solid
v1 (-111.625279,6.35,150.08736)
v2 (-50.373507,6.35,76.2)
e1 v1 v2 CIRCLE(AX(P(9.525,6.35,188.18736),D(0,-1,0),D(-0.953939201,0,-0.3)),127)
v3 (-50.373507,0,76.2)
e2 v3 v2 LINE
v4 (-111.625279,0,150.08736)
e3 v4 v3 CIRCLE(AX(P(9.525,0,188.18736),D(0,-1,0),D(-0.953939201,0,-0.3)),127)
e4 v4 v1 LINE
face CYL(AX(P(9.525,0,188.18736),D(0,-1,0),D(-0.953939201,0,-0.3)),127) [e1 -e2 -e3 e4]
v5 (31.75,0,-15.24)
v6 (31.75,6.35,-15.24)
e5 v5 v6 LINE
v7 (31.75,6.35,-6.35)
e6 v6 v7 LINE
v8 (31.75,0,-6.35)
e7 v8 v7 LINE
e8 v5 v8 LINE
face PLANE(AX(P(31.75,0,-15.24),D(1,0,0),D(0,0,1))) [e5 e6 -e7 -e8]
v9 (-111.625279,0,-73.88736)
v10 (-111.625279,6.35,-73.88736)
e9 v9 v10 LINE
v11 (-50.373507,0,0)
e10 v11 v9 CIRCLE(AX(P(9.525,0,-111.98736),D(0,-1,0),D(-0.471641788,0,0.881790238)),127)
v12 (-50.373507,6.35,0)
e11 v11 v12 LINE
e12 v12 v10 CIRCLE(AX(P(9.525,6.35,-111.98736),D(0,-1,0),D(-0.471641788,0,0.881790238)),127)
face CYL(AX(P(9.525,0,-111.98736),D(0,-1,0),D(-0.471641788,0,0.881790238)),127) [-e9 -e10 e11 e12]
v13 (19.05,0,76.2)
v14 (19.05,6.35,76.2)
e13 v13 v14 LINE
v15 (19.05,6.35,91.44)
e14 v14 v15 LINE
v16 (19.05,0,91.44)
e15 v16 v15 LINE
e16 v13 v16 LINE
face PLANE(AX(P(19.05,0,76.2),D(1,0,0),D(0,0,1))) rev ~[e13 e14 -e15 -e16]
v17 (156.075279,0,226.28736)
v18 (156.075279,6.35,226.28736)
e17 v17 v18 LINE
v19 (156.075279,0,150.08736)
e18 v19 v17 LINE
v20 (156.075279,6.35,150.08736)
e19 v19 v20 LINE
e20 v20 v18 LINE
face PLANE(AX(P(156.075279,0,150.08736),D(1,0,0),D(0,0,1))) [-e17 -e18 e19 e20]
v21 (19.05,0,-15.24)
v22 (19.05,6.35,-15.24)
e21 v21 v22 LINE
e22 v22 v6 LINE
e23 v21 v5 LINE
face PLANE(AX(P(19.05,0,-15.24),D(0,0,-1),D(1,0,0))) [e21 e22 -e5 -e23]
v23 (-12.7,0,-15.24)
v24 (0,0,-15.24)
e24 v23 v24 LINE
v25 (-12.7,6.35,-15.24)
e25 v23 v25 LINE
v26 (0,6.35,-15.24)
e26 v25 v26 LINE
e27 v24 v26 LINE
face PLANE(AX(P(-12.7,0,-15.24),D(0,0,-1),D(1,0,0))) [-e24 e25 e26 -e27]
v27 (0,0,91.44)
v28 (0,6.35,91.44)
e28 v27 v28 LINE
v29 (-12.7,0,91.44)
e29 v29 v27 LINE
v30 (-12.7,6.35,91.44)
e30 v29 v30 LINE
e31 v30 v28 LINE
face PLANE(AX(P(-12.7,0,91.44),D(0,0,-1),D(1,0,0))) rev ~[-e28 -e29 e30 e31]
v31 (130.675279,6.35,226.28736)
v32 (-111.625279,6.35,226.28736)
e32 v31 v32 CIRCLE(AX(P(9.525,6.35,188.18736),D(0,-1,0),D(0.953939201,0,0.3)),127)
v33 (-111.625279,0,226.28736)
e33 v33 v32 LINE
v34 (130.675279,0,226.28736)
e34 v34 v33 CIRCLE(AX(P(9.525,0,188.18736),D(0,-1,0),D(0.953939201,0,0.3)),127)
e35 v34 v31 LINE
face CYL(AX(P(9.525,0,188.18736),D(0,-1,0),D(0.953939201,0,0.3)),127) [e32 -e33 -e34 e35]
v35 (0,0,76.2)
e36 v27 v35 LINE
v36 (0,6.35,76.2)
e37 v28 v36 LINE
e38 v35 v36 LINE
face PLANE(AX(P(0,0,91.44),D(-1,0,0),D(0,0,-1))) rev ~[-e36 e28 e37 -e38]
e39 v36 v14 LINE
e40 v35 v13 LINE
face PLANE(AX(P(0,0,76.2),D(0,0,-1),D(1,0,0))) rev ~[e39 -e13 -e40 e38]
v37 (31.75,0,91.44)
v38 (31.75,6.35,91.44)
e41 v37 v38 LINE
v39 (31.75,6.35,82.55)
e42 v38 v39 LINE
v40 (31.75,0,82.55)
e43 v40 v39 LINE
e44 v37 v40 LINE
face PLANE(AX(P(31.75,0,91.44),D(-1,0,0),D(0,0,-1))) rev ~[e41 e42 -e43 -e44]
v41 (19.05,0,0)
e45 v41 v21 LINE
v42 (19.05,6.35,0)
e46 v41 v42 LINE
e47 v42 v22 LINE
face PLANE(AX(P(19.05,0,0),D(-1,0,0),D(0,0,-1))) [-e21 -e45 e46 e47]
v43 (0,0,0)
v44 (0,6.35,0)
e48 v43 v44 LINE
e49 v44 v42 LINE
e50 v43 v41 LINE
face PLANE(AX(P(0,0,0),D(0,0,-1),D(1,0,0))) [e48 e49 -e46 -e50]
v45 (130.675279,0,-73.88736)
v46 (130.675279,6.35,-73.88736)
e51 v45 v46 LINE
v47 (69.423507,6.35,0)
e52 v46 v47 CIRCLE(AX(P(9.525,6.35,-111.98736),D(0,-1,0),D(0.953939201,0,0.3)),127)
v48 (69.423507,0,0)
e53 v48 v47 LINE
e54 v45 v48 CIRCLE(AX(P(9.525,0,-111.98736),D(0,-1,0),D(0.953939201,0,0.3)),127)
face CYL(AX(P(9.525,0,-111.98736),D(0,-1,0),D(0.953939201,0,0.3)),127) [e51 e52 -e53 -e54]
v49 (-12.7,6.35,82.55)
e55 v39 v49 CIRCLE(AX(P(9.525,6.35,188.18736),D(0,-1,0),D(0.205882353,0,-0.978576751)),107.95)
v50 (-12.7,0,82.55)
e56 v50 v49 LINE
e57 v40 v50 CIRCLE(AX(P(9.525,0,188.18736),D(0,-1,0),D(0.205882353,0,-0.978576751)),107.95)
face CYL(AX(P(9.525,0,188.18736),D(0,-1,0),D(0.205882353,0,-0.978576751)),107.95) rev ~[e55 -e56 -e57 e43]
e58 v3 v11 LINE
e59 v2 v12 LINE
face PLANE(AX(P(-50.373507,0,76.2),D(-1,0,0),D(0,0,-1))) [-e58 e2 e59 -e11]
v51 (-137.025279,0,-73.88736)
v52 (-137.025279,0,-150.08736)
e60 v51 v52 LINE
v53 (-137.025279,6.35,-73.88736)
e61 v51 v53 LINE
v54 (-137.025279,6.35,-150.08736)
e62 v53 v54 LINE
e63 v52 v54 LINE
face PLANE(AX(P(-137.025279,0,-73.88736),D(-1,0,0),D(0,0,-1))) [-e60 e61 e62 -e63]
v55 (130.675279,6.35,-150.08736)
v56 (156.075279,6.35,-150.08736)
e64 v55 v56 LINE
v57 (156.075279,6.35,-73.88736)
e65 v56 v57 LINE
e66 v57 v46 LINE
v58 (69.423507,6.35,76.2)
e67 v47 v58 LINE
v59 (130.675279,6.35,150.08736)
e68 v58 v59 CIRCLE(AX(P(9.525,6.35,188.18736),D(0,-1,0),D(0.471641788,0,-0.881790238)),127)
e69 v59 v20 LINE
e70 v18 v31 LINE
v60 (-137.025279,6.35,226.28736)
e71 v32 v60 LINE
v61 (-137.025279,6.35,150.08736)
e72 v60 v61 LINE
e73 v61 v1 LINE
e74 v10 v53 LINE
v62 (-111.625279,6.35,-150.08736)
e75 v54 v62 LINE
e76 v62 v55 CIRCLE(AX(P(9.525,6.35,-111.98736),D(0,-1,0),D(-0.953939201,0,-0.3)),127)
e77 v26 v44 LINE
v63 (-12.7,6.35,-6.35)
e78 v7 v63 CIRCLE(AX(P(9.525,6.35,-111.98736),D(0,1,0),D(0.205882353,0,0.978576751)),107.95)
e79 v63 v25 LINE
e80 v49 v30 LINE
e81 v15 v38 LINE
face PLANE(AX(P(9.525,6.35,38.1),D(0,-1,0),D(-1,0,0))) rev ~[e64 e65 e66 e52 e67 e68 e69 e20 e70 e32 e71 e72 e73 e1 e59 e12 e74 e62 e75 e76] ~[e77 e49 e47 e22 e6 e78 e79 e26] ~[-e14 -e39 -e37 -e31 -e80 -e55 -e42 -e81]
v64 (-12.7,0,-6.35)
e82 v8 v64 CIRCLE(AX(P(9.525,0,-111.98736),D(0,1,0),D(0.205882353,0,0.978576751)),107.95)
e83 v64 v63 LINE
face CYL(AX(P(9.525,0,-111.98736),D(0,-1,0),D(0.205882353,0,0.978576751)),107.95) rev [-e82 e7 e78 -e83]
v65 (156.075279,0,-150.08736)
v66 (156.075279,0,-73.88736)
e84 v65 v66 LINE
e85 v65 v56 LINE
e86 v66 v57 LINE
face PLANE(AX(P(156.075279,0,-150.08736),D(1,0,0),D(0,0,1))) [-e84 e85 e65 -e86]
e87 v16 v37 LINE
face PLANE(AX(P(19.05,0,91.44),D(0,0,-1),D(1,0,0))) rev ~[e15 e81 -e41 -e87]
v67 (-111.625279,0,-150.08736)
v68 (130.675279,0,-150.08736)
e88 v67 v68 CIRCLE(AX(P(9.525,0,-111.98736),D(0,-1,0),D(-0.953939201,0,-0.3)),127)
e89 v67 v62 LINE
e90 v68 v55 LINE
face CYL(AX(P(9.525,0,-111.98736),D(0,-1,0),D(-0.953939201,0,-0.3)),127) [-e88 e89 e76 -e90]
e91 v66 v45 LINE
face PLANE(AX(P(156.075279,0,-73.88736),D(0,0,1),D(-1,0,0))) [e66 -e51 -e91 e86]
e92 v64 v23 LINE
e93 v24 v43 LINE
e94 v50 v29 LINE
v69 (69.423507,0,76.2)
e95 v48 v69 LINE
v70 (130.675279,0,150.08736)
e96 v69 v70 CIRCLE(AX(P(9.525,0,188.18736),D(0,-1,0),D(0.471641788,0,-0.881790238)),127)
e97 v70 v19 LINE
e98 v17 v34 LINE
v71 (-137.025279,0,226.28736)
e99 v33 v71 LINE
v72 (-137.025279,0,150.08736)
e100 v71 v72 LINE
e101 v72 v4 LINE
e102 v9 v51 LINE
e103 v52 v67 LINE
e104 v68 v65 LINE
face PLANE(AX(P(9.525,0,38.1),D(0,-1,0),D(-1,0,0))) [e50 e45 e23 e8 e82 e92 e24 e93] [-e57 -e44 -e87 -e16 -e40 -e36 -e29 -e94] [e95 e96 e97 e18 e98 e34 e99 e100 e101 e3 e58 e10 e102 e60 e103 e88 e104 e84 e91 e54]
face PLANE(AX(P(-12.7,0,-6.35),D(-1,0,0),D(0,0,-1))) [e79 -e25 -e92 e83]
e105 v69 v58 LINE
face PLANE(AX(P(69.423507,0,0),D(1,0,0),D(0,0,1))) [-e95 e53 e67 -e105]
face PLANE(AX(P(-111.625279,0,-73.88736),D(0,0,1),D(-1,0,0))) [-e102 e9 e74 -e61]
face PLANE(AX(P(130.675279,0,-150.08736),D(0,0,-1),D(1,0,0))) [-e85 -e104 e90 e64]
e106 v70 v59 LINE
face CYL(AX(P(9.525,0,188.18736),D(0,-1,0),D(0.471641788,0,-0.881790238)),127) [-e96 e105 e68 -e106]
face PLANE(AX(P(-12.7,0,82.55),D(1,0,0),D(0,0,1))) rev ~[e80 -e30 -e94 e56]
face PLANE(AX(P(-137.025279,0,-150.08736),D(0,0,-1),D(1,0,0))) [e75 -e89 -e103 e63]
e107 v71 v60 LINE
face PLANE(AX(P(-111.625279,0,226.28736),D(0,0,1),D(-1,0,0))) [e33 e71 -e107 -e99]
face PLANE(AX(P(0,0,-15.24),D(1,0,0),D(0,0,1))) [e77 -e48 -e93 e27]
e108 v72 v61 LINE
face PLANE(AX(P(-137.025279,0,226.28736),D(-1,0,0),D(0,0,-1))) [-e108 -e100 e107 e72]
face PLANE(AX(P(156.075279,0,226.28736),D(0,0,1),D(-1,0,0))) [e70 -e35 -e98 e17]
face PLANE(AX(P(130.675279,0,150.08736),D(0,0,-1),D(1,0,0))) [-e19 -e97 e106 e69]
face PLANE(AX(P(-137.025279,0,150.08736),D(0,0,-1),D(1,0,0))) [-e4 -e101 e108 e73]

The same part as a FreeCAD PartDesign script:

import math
import FreeCAD as App
import Part
import Sketcher

V = App.Vector
Q = App.Units.Quantity

doc = App.newDocument("Part")
body = doc.addObject("PartDesign::Body", "Body")

# Sketch on XZ plane
sketch1 = body.newObject("Sketcher::SketchObject", "Sketch")
sketch1.AttachmentSupport = (doc.getObject("XZ_Plane"), [""])
sketch1.MapMode = "FlatFace"
sketch1.addGeometry(Part.LineSegment(V(156, -150, 0), V(131, -150, 0)), False)
sketch1.addGeometry(Part.ArcOfCircle(Part.Circle(V(10, -112, 0), V(0, 0, 1), 127), math.radians(-163), math.radians(-17)), False)
sketch1.addGeometry(Part.LineSegment(V(-112, -150, 0), V(-137, -150, 0)), False)
sketch1.addGeometry(Part.LineSegment(V(-137, -150, 0), V(-137, -74, 0)), False)
sketch1.addGeometry(Part.LineSegment(V(-137, -74, 0), V(-112, -74, 0)), False)
sketch1.addGeometry(Part.ArcOfCircle(Part.Circle(V(10, -112, 0), V(0, 0, 1), 127), math.radians(118), math.radians(163)), False)
sketch1.addGeometry(Part.LineSegment(V(-50, 0, 0), V(-50, 76, 0)), False)
sketch1.addGeometry(Part.ArcOfCircle(Part.Circle(V(10, 188, 0), V(0, 0, 1), 127), math.radians(-163), math.radians(-118)), False)
sketch1.addGeometry(Part.LineSegment(V(-112, 150, 0), V(-137, 150, 0)), False)
sketch1.addGeometry(Part.LineSegment(V(-137, 150, 0), V(-137, 226, 0)), False)
sketch1.addGeometry(Part.LineSegment(V(-137, 226, 0), V(-112, 226, 0)), False)
sketch1.addGeometry(Part.ArcOfCircle(Part.Circle(V(10, 188, 0), V(0, 0, 1), 127), math.radians(17), math.radians(163)), False)
sketch1.addGeometry(Part.LineSegment(V(131, 226, 0), V(156, 226, 0)), False)
sketch1.addGeometry(Part.LineSegment(V(156, 226, 0), V(156, 150, 0)), False)
sketch1.addGeometry(Part.LineSegment(V(156, 150, 0), V(131, 150, 0)), False)
sketch1.addGeometry(Part.ArcOfCircle(Part.Circle(V(10, 188, 0), V(0, 0, 1), 127), math.radians(-62), math.radians(-17)), False)
sketch1.addGeometry(Part.LineSegment(V(69, 76, 0), V(69, 0, 0)), False)
sketch1.addGeometry(Part.ArcOfCircle(Part.Circle(V(10, -112, 0), V(0, 0, 1), 127), math.radians(17), math.radians(62)), False)
sketch1.addGeometry(Part.LineSegment(V(131, -74, 0), V(156, -74, 0)), False)
sketch1.addGeometry(Part.LineSegment(V(156, -74, 0), V(156, -150, 0)), False)
sketch1.addGeometry(Part.LineSegment(V(0, 76, 0), V(19, 76, 0)), False)
sketch1.addGeometry(Part.LineSegment(V(19, 76, 0), V(19, 91, 0)), False)
sketch1.addGeometry(Part.LineSegment(V(19, 91, 0), V(32, 91, 0)), False)
sketch1.addGeometry(Part.LineSegment(V(32, 91, 0), V(32, 83, 0)), False)
sketch1.addGeometry(Part.ArcOfCircle(Part.Circle(V(10, 188, 0), V(0, 0, 1), 108), math.radians(-78), math.radians(258)), False)
sketch1.addGeometry(Part.LineSegment(V(-13, 83, 0), V(-13, 91, 0)), False)
sketch1.addGeometry(Part.LineSegment(V(-13, 91, 0), V(0, 91, 0)), False)
sketch1.addGeometry(Part.LineSegment(V(0, 91, 0), V(0, 76, 0)), False)
sketch1.addGeometry(Part.LineSegment(V(0, 0, 0), V(0, -15, 0)), False)
sketch1.addGeometry(Part.LineSegment(V(0, -15, 0), V(-13, -15, 0)), False)
sketch1.addGeometry(Part.LineSegment(V(-13, -15, 0), V(-13, -6, 0)), False)
sketch1.addGeometry(Part.ArcOfCircle(Part.Circle(V(10, -112, 0), V(0, 0, 1), 108), math.radians(102), math.radians(438)), False)
sketch1.addGeometry(Part.LineSegment(V(32, -6, 0), V(32, -15, 0)), False)
sketch1.addGeometry(Part.LineSegment(V(32, -15, 0), V(19, -15, 0)), False)
sketch1.addGeometry(Part.LineSegment(V(19, -15, 0), V(19, 0, 0)), False)
sketch1.addGeometry(Part.LineSegment(V(19, 0, 0), V(0, 0, 0)), False)
sketch1.addConstraint(Sketcher.Constraint("Coincident", 0, 2, 1, 2))
sketch1.addConstraint(Sketcher.Constraint("Coincident", 1, 1, 2, 1))
sketch1.addConstraint(Sketcher.Constraint("Coincident", 2, 2, 3, 1))
sketch1.addConstraint(Sketcher.Constraint("Coincident", 3, 2, 4, 1))
sketch1.addConstraint(Sketcher.Constraint("Coincident", 4, 2, 5, 2))
sketch1.addConstraint(Sketcher.Constraint("Coincident", 5, 1, 6, 1))
sketch1.addConstraint(Sketcher.Constraint("Coincident", 6, 2, 7, 2))
sketch1.addConstraint(Sketcher.Constraint("Coincident", 7, 1, 8, 1))
sketch1.addConstraint(Sketcher.Constraint("Coincident", 8, 2, 9, 1))
sketch1.addConstraint(Sketcher.Constraint("Coincident", 9, 2, 10, 1))
sketch1.addConstraint(Sketcher.Constraint("Coincident", 10, 2, 11, 2))
sketch1.addConstraint(Sketcher.Constraint("Coincident", 11, 1, 12, 1))
sketch1.addConstraint(Sketcher.Constraint("Coincident", 12, 2, 13, 1))
sketch1.addConstraint(Sketcher.Constraint("Coincident", 13, 2, 14, 1))
sketch1.addConstraint(Sketcher.Constraint("Coincident", 14, 2, 15, 2))
sketch1.addConstraint(Sketcher.Constraint("Coincident", 15, 1, 16, 1))
sketch1.addConstraint(Sketcher.Constraint("Coincident", 16, 2, 17, 2))
sketch1.addConstraint(Sketcher.Constraint("Coincident", 17, 1, 18, 1))
sketch1.addConstraint(Sketcher.Constraint("Coincident", 18, 2, 19, 1))
sketch1.addConstraint(Sketcher.Constraint("Coincident", 19, 2, 0, 1))
sketch1.addConstraint(Sketcher.Constraint("Coincident", 20, 2, 21, 1))
sketch1.addConstraint(Sketcher.Constraint("Coincident", 21, 2, 22, 1))
sketch1.addConstraint(Sketcher.Constraint("Coincident", 22, 2, 23, 1))
sketch1.addConstraint(Sketcher.Constraint("Coincident", 23, 2, 24, 1))
sketch1.addConstraint(Sketcher.Constraint("Coincident", 24, 2, 25, 1))
sketch1.addConstraint(Sketcher.Constraint("Coincident", 25, 2, 26, 1))
sketch1.addConstraint(Sketcher.Constraint("Coincident", 26, 2, 27, 1))
sketch1.addConstraint(Sketcher.Constraint("Coincident", 27, 2, 20, 1))
sketch1.addConstraint(Sketcher.Constraint("Coincident", 28, 2, 29, 1))
sketch1.addConstraint(Sketcher.Constraint("Coincident", 29, 2, 30, 1))
sketch1.addConstraint(Sketcher.Constraint("Coincident", 30, 2, 31, 1))
sketch1.addConstraint(Sketcher.Constraint("Coincident", 31, 2, 32, 1))
sketch1.addConstraint(Sketcher.Constraint("Coincident", 32, 2, 33, 1))
sketch1.addConstraint(Sketcher.Constraint("Coincident", 33, 2, 34, 1))
sketch1.addConstraint(Sketcher.Constraint("Coincident", 34, 2, 35, 1))
sketch1.addConstraint(Sketcher.Constraint("Coincident", 35, 2, 28, 1))
sketch1.addConstraint(Sketcher.Constraint("Horizontal", 0))
sketch1.addConstraint(Sketcher.Constraint("Horizontal", 2))
sketch1.addConstraint(Sketcher.Constraint("Vertical", 3))
sketch1.addConstraint(Sketcher.Constraint("Horizontal", 4))
sketch1.addConstraint(Sketcher.Constraint("Vertical", 6))
sketch1.addConstraint(Sketcher.Constraint("Horizontal", 8))
sketch1.addConstraint(Sketcher.Constraint("Vertical", 9))
sketch1.addConstraint(Sketcher.Constraint("Horizontal", 10))
sketch1.addConstraint(Sketcher.Constraint("Horizontal", 12))
sketch1.addConstraint(Sketcher.Constraint("Vertical", 13))
sketch1.addConstraint(Sketcher.Constraint("Horizontal", 14))
sketch1.addConstraint(Sketcher.Constraint("Vertical", 16))
sketch1.addConstraint(Sketcher.Constraint("Horizontal", 18))
sketch1.addConstraint(Sketcher.Constraint("Vertical", 19))
sketch1.addConstraint(Sketcher.Constraint("Horizontal", 20))
sketch1.addConstraint(Sketcher.Constraint("Vertical", 21))
sketch1.addConstraint(Sketcher.Constraint("Horizontal", 22))
sketch1.addConstraint(Sketcher.Constraint("Vertical", 23))
sketch1.addConstraint(Sketcher.Constraint("Vertical", 25))
sketch1.addConstraint(Sketcher.Constraint("Horizontal", 26))
sketch1.addConstraint(Sketcher.Constraint("Vertical", 27))
sketch1.addConstraint(Sketcher.Constraint("Vertical", 28))
sketch1.addConstraint(Sketcher.Constraint("Horizontal", 29))
sketch1.addConstraint(Sketcher.Constraint("Vertical", 30))
sketch1.addConstraint(Sketcher.Constraint("Vertical", 32))
sketch1.addConstraint(Sketcher.Constraint("Horizontal", 33))
sketch1.addConstraint(Sketcher.Constraint("Vertical", 34))
sketch1.addConstraint(Sketcher.Constraint("Horizontal", 35))
sketch1.addConstraint(Sketcher.Constraint("Coincident", 35, 2, -1, 1))
sketch1.addConstraint(Sketcher.Constraint("Coincident", 5, 3, 1, 3))
sketch1.addConstraint(Sketcher.Constraint("Coincident", 11, 3, 7, 3))
sketch1.addConstraint(Sketcher.Constraint("Coincident", 15, 3, 7, 3))
sketch1.addConstraint(Sketcher.Constraint("Coincident", 17, 3, 1, 3))
sketch1.addConstraint(Sketcher.Constraint("Coincident", 24, 3, 7, 3))
sketch1.addConstraint(Sketcher.Constraint("Coincident", 31, 3, 1, 3))
sketch1.addConstraint(Sketcher.Constraint("Equal", 1, 5))
sketch1.addConstraint(Sketcher.Constraint("Equal", 5, 7))
sketch1.addConstraint(Sketcher.Constraint("Equal", 7, 11))
sketch1.addConstraint(Sketcher.Constraint("Equal", 11, 15))
sketch1.addConstraint(Sketcher.Constraint("Equal", 15, 17))
sketch1.addConstraint(Sketcher.Constraint("Equal", 24, 31))
sketch1.addConstraint(Sketcher.Constraint("Symmetric", 1, 1, 7, 1, -1))
sketch1.addConstraint(Sketcher.Constraint("Symmetric", 0, 2, 14, 2, -1))
sketch1.addConstraint(Sketcher.Constraint("PointOnObject", 5, 1, -1))
sketch1.addConstraint(Sketcher.Constraint("PointOnObject", 16, 2, -1))
sketch1.addConstraint(Sketcher.Constraint("PointOnObject", 26, 2, -2))
sketch1.addConstraint(Sketcher.Constraint("Horizontal", 0, 2, 1, 1))
sketch1.addConstraint(Sketcher.Constraint("Horizontal", 10, 2, 11, 1))
sketch1.addConstraint(Sketcher.Constraint("Horizontal", 4, 2, 17, 1))
sketch1.addConstraint(Sketcher.Constraint("Horizontal", 15, 1, 20, 2))
sketch1.addConstraint(Sketcher.Constraint("Horizontal", 23, 2, 24, 2))
sketch1.addConstraint(Sketcher.Constraint("Horizontal", 22, 2, 25, 2))
sketch1.addConstraint(Sketcher.Constraint("Horizontal", 30, 2, 31, 2))
sketch1.addConstraint(Sketcher.Constraint("Horizontal", 29, 2, 32, 2))
sketch1.addConstraint(Sketcher.Constraint("Vertical", 1, 1, 4, 2))
sketch1.addConstraint(Sketcher.Constraint("Vertical", 3, 2, 8, 2))
sketch1.addConstraint(Sketcher.Constraint("Vertical", 7, 1, 10, 2))
sketch1.addConstraint(Sketcher.Constraint("Vertical", 13, 2, 18, 2))
sketch1.addConstraint(Sketcher.Constraint("Vertical", 25, 2, 29, 2))
sketch1.addConstraint(Sketcher.Constraint("Vertical", 21, 2, 33, 2))
sketch1.addConstraint(Sketcher.Constraint("Equal", 0, 2))
sketch1.addConstraint(Sketcher.Constraint("Equal", 22, 26))
sketch1.addConstraint(Sketcher.Constraint("Equal", 27, 28))
sketch1.addConstraint(Sketcher.Constraint("Radius", 1, Q("5 in")))
sketch1.addConstraint(Sketcher.Constraint("DistanceX", 0, 2, 0, 1, Q("1 in")))
sketch1.addConstraint(Sketcher.Constraint("DistanceY", 3, 1, 3, 2, Q("3 in")))
sketch1.addConstraint(Sketcher.Constraint("Radius", 24, Q("4.25 in")))
sketch1.addConstraint(Sketcher.Constraint("DistanceX", 22, 1, 22, 2, Q("0.5 in")))
sketch1.addConstraint(Sketcher.Constraint("DistanceY", 21, 1, 21, 2, Q("0.6 in")))
sketch1.addConstraint(Sketcher.Constraint("DistanceX", 20, 1, 20, 2, Q("0.75 in")))
sketch1.addConstraint(Sketcher.Constraint("DistanceY", 23, 2, 23, 1, Q("0.35 in")))
pad1 = body.newObject("PartDesign::Pad", "Pad")
pad1.Profile = sketch1
pad1.Length = Q("0.25 in")
pad1.Reversed = True

doc.recompute()
